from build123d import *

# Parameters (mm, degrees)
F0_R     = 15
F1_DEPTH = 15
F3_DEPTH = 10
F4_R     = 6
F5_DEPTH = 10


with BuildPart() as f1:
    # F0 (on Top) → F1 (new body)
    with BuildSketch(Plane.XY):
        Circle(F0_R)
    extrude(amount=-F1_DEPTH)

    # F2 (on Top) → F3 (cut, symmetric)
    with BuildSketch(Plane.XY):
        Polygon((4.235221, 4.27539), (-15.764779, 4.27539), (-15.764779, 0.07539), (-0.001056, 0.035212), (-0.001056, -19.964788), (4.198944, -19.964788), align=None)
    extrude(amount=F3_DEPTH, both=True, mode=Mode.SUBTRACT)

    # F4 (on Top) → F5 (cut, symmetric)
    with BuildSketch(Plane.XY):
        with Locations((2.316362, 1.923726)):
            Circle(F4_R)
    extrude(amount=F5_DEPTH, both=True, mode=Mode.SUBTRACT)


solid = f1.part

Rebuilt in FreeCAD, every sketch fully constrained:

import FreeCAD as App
import Part
import Sketcher
Q = App.Units.Quantity


def add_polygon(sketch, points):
    """Adds a closed chain of lines whose ends are joined by coincident constraints."""
    first, n = sketch.GeometryCount, len(points)
    for a, b in zip(points, points[1:] + points[:1]):
        sketch.addGeometry(Part.LineSegment(App.Vector(*a, 0), App.Vector(*b, 0)), False)
    for i in range(n):
        sketch.addConstraint(Sketcher.Constraint("Coincident", first + i, 2, first + (i + 1) % n, 1))

doc = App.newDocument("Part")
params = doc.addObject("Spreadsheet::Sheet", "Params")
for row, (alias, value) in enumerate([
    ("sketch1_diameter", "30 mm"),
    ("pad1_length", "15 mm"),
    ("sketch2_width", "20 mm"),
    ("sketch2_width2", "4.2 mm"),
    ("pocket1_length", "20 mm"),
    ("sketch3_diameter", "12 mm"),
    ("pocket2_length", "20 mm"),
], start=1):
    params.set(f"A{row}", alias)
    params.set(f"B{row}", "=" + value)
    params.setAlias(f"B{row}", alias)

body = doc.addObject("PartDesign::Body", "Body")

sketch1 = doc.addObject("Sketcher::SketchObject", "Sketch")
body.addObject(sketch1)
sketch1.AttachmentSupport = (doc.XY_Plane, [""])
sketch1.MapMode = "FlatFace"
sketch1.addGeometry(Part.Circle(App.Vector(0, 0, 0), App.Vector(0, 0, 1), 15), False)
sketch1.addConstraint(Sketcher.Constraint("Coincident", 0, 3, -1, 1))
sketch1.addConstraint(Sketcher.Constraint("Diameter", 0, Q("30 mm")))
sketch1.setExpression("Constraints[1]", "Params.sketch1_diameter")
pad1 = doc.addObject("PartDesign::Pad", "Pad")
body.addObject(pad1)
pad1.Profile = sketch1
pad1.setExpression("Length", "Params.pad1_length")
pad1.Reversed = True

sketch2 = doc.addObject("Sketcher::SketchObject", "Sketch001")
body.addObject(sketch2)
sketch2.AttachmentSupport = (doc.XY_Plane, [""])
sketch2.MapMode = "FlatFace"
add_polygon(sketch2, [(4.2, 4.3), (-15.8, 4.3), (-15.8, 0.1), (0, 0), (0, -20), (4.2, -20)])
sketch2.addConstraint(Sketcher.Constraint("Horizontal", 0))
sketch2.addConstraint(Sketcher.Constraint("Vertical", 1))
sketch2.addConstraint(Sketcher.Constraint("Vertical", 3))
sketch2.addConstraint(Sketcher.Constraint("Horizontal", 4))
sketch2.addConstraint(Sketcher.Constraint("Equal", 4, 1))
sketch2.addConstraint(Sketcher.Constraint("Equal", 0, 3))
sketch2.addConstraint(Sketcher.Constraint("DistanceX", 0, 2, 0, 1, Q("20 mm")))
sketch2.addConstraint(Sketcher.Constraint("DistanceX", 4, 1, 4, 2, Q("4.2 mm")))
sketch2.addConstraint(Sketcher.Constraint("DistanceX", 0, 2, -1, 1, Q("15.764779 mm")))
sketch2.addConstraint(Sketcher.Constraint("DistanceY", -1, 1, 0, 2, Q("4.27539 mm")))
sketch2.addConstraint(Sketcher.Constraint("DistanceY", 2, 2, 0, 2, Q("4.240178 mm")))
sketch2.addConstraint(Sketcher.Constraint("Distance", 2, Q("15.763774 mm")))
sketch2.setExpression("Constraints[12]", "Params.sketch2_width")
sketch2.setExpression("Constraints[13]", "Params.sketch2_width2")
pocket1 = doc.addObject("PartDesign::Pocket", "Pocket")
body.addObject(pocket1)
pocket1.Profile = sketch2
pocket1.setExpression("Length", "Params.pocket1_length")
pocket1.Midplane = True

sketch3 = doc.addObject("Sketcher::SketchObject", "Sketch002")
body.addObject(sketch3)
sketch3.AttachmentSupport = (doc.XY_Plane, [""])
sketch3.MapMode = "FlatFace"
sketch3.addGeometry(Part.Circle(App.Vector(2, 2, 0), App.Vector(0, 0, 1), 6), False)
sketch3.addConstraint(Sketcher.Constraint("Diameter", 0, Q("12 mm")))
sketch3.addConstraint(Sketcher.Constraint("DistanceX", -1, 1, 0, 3, Q("2.316362 mm")))
sketch3.addConstraint(Sketcher.Constraint("DistanceY", -1, 1, 0, 3, Q("1.923726 mm")))
sketch3.setExpression("Constraints[0]", "Params.sketch3_diameter")
pocket2 = doc.addObject("PartDesign::Pocket", "Pocket001")
body.addObject(pocket2)
pocket2.Profile = sketch3
pocket2.setExpression("Length", "Params.pocket2_length")
pocket2.Midplane = True

doc.recompute()
